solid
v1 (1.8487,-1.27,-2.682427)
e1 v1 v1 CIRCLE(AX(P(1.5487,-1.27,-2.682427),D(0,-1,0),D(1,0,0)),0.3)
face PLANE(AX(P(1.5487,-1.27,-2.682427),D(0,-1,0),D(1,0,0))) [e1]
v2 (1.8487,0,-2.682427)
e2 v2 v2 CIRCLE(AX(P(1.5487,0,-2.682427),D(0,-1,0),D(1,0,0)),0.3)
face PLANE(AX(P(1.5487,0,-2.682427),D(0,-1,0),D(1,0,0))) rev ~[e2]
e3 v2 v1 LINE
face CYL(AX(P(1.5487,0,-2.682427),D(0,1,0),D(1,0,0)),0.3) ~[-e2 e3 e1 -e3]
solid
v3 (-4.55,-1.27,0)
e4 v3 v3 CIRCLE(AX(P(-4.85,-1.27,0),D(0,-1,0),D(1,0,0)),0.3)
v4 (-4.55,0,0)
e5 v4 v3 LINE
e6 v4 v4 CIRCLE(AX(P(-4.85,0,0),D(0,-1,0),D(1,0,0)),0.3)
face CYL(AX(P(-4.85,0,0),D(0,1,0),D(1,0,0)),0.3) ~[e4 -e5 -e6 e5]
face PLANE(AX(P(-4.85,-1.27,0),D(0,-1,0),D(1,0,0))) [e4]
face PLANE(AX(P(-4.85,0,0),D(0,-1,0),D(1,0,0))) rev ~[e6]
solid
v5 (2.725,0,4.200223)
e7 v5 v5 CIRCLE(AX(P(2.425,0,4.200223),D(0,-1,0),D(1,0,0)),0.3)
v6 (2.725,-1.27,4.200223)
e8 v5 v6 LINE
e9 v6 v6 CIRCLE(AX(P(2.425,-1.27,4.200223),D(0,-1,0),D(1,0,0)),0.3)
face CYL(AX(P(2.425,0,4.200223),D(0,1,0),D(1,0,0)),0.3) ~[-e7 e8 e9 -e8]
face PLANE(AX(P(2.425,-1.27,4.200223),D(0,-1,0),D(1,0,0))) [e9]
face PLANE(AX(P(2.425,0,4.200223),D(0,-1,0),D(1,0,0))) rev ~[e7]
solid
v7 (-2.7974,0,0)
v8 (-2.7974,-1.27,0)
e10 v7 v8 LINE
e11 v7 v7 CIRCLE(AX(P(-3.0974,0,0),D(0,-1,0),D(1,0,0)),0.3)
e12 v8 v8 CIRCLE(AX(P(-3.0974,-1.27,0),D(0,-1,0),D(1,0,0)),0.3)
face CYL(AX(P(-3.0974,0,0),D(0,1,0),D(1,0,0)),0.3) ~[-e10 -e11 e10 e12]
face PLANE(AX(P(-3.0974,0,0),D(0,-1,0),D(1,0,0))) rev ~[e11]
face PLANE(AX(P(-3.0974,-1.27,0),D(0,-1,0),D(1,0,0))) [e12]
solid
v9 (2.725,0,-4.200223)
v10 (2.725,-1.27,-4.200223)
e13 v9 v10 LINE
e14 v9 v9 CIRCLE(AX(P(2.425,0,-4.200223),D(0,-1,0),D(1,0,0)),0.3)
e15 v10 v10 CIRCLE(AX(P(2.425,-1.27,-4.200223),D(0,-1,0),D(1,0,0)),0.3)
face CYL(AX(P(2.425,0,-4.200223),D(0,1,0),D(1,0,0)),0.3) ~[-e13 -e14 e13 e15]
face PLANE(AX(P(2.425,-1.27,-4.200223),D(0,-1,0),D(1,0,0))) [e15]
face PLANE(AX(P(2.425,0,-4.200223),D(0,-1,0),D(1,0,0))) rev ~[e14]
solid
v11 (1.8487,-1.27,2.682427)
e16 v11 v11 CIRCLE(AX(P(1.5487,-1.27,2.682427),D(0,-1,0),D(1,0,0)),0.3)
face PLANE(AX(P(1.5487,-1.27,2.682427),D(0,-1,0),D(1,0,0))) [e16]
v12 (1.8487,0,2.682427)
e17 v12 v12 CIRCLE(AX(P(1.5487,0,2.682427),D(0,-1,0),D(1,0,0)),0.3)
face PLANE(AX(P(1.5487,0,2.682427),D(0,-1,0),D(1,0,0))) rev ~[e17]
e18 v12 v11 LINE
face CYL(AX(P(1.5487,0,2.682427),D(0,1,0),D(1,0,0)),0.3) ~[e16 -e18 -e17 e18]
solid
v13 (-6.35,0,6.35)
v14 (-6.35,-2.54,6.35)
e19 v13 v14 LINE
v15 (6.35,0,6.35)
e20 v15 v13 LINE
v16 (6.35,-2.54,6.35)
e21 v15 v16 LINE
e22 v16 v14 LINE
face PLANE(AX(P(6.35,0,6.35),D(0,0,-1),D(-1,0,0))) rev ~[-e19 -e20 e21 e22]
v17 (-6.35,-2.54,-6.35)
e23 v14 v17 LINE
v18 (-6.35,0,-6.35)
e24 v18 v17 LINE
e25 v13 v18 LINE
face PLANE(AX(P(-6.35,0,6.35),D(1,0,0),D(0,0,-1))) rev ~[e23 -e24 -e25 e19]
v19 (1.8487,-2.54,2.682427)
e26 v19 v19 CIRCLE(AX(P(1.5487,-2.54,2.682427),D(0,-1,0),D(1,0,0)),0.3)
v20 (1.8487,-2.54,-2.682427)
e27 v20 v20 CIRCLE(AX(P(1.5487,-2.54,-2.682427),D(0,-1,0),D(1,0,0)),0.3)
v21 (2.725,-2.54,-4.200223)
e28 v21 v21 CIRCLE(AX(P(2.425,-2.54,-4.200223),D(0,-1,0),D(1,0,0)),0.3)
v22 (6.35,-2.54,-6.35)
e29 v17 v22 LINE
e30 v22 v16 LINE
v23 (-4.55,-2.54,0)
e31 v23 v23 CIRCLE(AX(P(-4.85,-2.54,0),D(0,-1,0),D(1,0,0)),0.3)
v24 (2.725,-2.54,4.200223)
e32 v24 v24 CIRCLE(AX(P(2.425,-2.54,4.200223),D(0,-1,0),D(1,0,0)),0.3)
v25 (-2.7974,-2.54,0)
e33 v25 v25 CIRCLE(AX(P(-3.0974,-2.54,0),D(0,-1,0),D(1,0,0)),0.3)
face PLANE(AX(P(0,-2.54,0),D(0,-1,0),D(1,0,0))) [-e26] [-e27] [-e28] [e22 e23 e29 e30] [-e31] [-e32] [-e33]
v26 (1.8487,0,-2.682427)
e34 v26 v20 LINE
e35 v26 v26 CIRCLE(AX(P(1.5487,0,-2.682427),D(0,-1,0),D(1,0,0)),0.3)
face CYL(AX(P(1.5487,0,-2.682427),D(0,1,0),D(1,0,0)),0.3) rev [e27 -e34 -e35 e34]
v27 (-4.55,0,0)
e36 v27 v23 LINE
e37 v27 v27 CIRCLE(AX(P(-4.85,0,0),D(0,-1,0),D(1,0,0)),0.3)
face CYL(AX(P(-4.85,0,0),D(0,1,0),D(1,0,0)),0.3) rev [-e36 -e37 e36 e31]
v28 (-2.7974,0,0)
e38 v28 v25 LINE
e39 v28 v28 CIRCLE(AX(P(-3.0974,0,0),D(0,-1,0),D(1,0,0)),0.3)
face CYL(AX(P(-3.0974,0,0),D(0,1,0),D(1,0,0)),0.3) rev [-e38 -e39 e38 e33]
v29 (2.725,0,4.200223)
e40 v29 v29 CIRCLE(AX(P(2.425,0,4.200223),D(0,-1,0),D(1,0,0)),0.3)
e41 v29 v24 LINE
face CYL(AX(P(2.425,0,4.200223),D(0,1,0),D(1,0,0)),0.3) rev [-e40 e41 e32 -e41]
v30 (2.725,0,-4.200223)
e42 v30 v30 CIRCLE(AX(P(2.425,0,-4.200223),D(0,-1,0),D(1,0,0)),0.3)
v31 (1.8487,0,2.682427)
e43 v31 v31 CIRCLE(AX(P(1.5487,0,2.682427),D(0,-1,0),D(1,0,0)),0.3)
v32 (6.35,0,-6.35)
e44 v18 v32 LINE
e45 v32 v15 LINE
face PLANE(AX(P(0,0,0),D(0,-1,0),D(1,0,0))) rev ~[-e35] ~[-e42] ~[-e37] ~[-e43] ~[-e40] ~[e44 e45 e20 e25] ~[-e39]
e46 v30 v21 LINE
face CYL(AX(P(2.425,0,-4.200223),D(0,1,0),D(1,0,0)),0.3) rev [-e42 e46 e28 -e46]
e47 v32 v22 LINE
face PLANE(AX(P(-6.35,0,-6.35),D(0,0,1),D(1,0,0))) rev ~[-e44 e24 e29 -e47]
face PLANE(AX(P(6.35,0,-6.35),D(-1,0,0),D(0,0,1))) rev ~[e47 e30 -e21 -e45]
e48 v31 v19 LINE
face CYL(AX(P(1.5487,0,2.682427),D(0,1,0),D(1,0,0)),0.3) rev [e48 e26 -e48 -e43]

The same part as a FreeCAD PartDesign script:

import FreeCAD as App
import Part
import Sketcher

V = App.Vector
Q = App.Units.Quantity

doc = App.newDocument("Part")
params = doc.addObject("Spreadsheet::Sheet", "Params")
for row, (alias, value) in enumerate([
    ("pad1_length", "0.05 in"),
    ("pad2_length", "0.05 in"),
    ("pad3_length", "0.05 in"),
    ("pad4_length", "0.05 in"),
    ("pad5_length", "0.05 in"),
    ("pad6_length", "0.05 in"),
    ("sketch7_width", "0.5 in"),
    ("pad7_length", "0.1 in"),
], start=1):
    params.set(f"A{row}", alias)
    params.set(f"B{row}", "=" + value)
    params.setAlias(f"B{row}", alias)

body = doc.addObject("PartDesign::Body", "Body")

# Sketch on XZ plane
sketch1 = doc.addObject("Sketcher::SketchObject", "Sketch")
body.addObject(sketch1)
sketch1.AttachmentSupport = (doc.XZ_Plane, [""])
sketch1.MapMode = "FlatFace"
sketch1.addGeometry(Part.Circle(V(2.42, 4.2, 0), V(0, 0, 1), 0.3), False)
sketch1.addConstraint([
    Sketcher.Constraint("Diameter", 0, Q("0.6 mm")),
    Sketcher.Constraint("DistanceX", -1, 1, 0, 3, Q("2.425 mm")),
    Sketcher.Constraint("DistanceY", -1, 1, 0, 3, Q("4.200223 mm")),
])
pad1 = doc.addObject("PartDesign::Pad", "Pad")
body.addObject(pad1)
pad1.Profile = sketch1
pad1.setExpression("Length", "Params.pad1_length")
body2 = doc.addObject("PartDesign::Body", "Body001")

# Sketch on XZ plane
sketch2 = doc.addObject("Sketcher::SketchObject", "Sketch001")
body2.addObject(sketch2)
sketch2.AttachmentSupport = (doc.getObject("XZ_Plane001"), [""])
sketch2.MapMode = "FlatFace"
sketch2.addGeometry(Part.Circle(V(1.55, 2.68, 0), V(0, 0, 1), 0.3), False)
sketch2.addConstraint([
    Sketcher.Constraint("Diameter", 0, Q("0.6 mm")),
    Sketcher.Constraint("DistanceX", -1, 1, 0, 3, Q("1.5487 mm")),
    Sketcher.Constraint("DistanceY", -1, 1, 0, 3, Q("2.682427 mm")),
])
pad2 = doc.addObject("PartDesign::Pad", "Pad001")
body2.addObject(pad2)
pad2.Profile = sketch2
pad2.setExpression("Length", "Params.pad2_length")
body3 = doc.addObject("PartDesign::Body", "Body002")

# Sketch on XZ plane
sketch3 = doc.addObject("Sketcher::SketchObject", "Sketch002")
body3.addObject(sketch3)
sketch3.AttachmentSupport = (doc.getObject("XZ_Plane002"), [""])
sketch3.MapMode = "FlatFace"
sketch3.addGeometry(Part.Circle(V(-3.1, 0, 0), V(0, 0, 1), 0.3), False)
sketch3.addConstraint([
    Sketcher.Constraint("PointOnObject", 0, 3, -1),
    Sketcher.Constraint("Diameter", 0, Q("0.6 mm")),
    Sketcher.Constraint("DistanceX", 0, 3, -1, 1, Q("3.0974 mm")),
])
pad3 = doc.addObject("PartDesign::Pad", "Pad002")
body3.addObject(pad3)
pad3.Profile = sketch3
pad3.setExpression("Length", "Params.pad3_length")
body4 = doc.addObject("PartDesign::Body", "Body003")

# Sketch on XZ plane
sketch4 = doc.addObject("Sketcher::SketchObject", "Sketch003")
body4.addObject(sketch4)
sketch4.AttachmentSupport = (doc.getObject("XZ_Plane003"), [""])
sketch4.MapMode = "FlatFace"
sketch4.addGeometry(Part.Circle(V(-4.85, 0, 0), V(0, 0, 1), 0.3), False)
sketch4.addConstraint([
    Sketcher.Constraint("PointOnObject", 0, 3, -1),
    Sketcher.Constraint("Diameter", 0, Q("0.6 mm")),
    Sketcher.Constraint("DistanceX", 0, 3, -1, 1, Q("4.85 mm")),
])
pad4 = doc.addObject("PartDesign::Pad", "Pad003")
body4.addObject(pad4)
pad4.Profile = sketch4
pad4.setExpression("Length", "Params.pad4_length")
body5 = doc.addObject("PartDesign::Body", "Body004")

# Sketch on XZ plane
sketch5 = doc.addObject("Sketcher::SketchObject", "Sketch004")
body5.addObject(sketch5)
sketch5.AttachmentSupport = (doc.getObject("XZ_Plane004"), [""])
sketch5.MapMode = "FlatFace"
sketch5.addGeometry(Part.Circle(V(1.55, -2.68, 0), V(0, 0, 1), 0.3), False)
sketch5.addConstraint([
    Sketcher.Constraint("Diameter", 0, Q("0.6 mm")),
    Sketcher.Constraint("DistanceX", -1, 1, 0, 3, Q("1.5487 mm")),
    Sketcher.Constraint("DistanceY", 0, 3, -1, 1, Q("2.682427 mm")),
])
pad5 = doc.addObject("PartDesign::Pad", "Pad004")
body5.addObject(pad5)
pad5.Profile = sketch5
pad5.setExpression("Length", "Params.pad5_length")
body6 = doc.addObject("PartDesign::Body", "Body005")

# Sketch on XZ plane
sketch6 = doc.addObject("Sketcher::SketchObject", "Sketch005")
body6.addObject(sketch6)
sketch6.AttachmentSupport = (doc.getObject("XZ_Plane005"), [""])
sketch6.MapMode = "FlatFace"
sketch6.addGeometry(Part.Circle(V(2.42, -4.2, 0), V(0, 0, 1), 0.3), False)
sketch6.addConstraint([
    Sketcher.Constraint("Diameter", 0, Q("0.6 mm")),
    Sketcher.Constraint("DistanceX", -1, 1, 0, 3, Q("2.425 mm")),
    Sketcher.Constraint("DistanceY", 0, 3, -1, 1, Q("4.200223 mm")),
])
pad6 = doc.addObject("PartDesign::Pad", "Pad005")
body6.addObject(pad6)
pad6.Profile = sketch6
pad6.setExpression("Length", "Params.pad6_length")
body7 = doc.addObject("PartDesign::Body", "Body006")

# Sketch on XZ plane
sketch7 = doc.addObject("Sketcher::SketchObject", "Sketch006")
body7.addObject(sketch7)
sketch7.AttachmentSupport = (doc.getObject("XZ_Plane006"), [""])
sketch7.MapMode = "FlatFace"
sketch7.addGeometry([
    Part.LineSegment(V(6.35, -6.35, 0), V(6.35, 6.35, 0)),  # 0
    Part.LineSegment(V(6.35, 6.35, 0), V(-6.35, 6.35, 0)),  # 1
    Part.LineSegment(V(-6.35, 6.35, 0), V(-6.35, -6.35, 0)),  # 2
    Part.LineSegment(V(-6.35, -6.35, 0), V(6.35, -6.35, 0)),  # 3
    Part.Circle(V(2.42, -4.2, 0), V(0, 0, 1), 0.3),  # 4
    Part.Circle(V(1.55, -2.68, 0), V(0, 0, 1), 0.3),  # 5
    Part.Circle(V(-4.85, 0, 0), V(0, 0, 1), 0.3),  # 6
    Part.Circle(V(-3.1, 0, 0), V(0, 0, 1), 0.3),  # 7
    Part.Circle(V(1.55, 2.68, 0), V(0, 0, 1), 0.3),  # 8
    Part.Circle(V(2.42, 4.2, 0), V(0, 0, 1), 0.3),  # 9
], False)
sketch7.addConstraint([
    Sketcher.Constraint("Coincident", 0, 2, 1, 1),
    Sketcher.Constraint("Coincident", 1, 2, 2, 1),
    Sketcher.Constraint("Coincident", 2, 2, 3, 1),
    Sketcher.Constraint("Coincident", 3, 2, 0, 1),
    Sketcher.Constraint("Vertical", 0),
    Sketcher.Constraint("Horizontal", 1),
    Sketcher.Constraint("Vertical", 2),
    Sketcher.Constraint("Horizontal", 3),
    Sketcher.Constraint("Equal", 4, 5),
    Sketcher.Constraint("Equal", 5, 6),
    Sketcher.Constraint("Equal", 6, 7),
    Sketcher.Constraint("Equal", 7, 8),
    Sketcher.Constraint("Equal", 8, 9),
    Sketcher.Constraint("Symmetric", 0, 2, 2, 2, -1, 1),
    Sketcher.Constraint("Symmetric", 5, 3, 8, 3, -1),
    Sketcher.Constraint("Symmetric", 4, 3, 9, 3, -1),
    Sketcher.Constraint("PointOnObject", 6, 3, -1),
    Sketcher.Constraint("PointOnObject", 7, 3, -1),
    Sketcher.Constraint("Equal", 3, 0),
    Sketcher.Constraint("DistanceX", 1, 2, 1, 1, Q("0.5 in")),
    Sketcher.Constraint("Diameter", 4, Q("0.6 mm")),
    Sketcher.Constraint("DistanceX", 6, 3, 7, 3, Q("0.069 in")),
    Sketcher.Constraint("DistanceX", 5, 3, 4, 3, Q("0.0345 in")),
    Sketcher.Constraint("DistanceX", -1, 1, 4, 3, Q("2.425 mm")),
    Sketcher.Constraint("DistanceX", 6, 3, -1, 1, Q("4.85 mm")),
    Sketcher.Constraint("DistanceY", 4, 3, 8, 3, Q("6.88265 mm")),
    Sketcher.Constraint("DistanceY", 4, 3, -1, 1, Q("4.200223 mm")),
])
sketch7.setExpression("Constraints[19]", "Params.sketch7_width")
pad7 = doc.addObject("PartDesign::Pad", "Pad006")
body7.addObject(pad7)
pad7.Profile = sketch7
pad7.setExpression("Length", "Params.pad7_length")

doc.recompute()
